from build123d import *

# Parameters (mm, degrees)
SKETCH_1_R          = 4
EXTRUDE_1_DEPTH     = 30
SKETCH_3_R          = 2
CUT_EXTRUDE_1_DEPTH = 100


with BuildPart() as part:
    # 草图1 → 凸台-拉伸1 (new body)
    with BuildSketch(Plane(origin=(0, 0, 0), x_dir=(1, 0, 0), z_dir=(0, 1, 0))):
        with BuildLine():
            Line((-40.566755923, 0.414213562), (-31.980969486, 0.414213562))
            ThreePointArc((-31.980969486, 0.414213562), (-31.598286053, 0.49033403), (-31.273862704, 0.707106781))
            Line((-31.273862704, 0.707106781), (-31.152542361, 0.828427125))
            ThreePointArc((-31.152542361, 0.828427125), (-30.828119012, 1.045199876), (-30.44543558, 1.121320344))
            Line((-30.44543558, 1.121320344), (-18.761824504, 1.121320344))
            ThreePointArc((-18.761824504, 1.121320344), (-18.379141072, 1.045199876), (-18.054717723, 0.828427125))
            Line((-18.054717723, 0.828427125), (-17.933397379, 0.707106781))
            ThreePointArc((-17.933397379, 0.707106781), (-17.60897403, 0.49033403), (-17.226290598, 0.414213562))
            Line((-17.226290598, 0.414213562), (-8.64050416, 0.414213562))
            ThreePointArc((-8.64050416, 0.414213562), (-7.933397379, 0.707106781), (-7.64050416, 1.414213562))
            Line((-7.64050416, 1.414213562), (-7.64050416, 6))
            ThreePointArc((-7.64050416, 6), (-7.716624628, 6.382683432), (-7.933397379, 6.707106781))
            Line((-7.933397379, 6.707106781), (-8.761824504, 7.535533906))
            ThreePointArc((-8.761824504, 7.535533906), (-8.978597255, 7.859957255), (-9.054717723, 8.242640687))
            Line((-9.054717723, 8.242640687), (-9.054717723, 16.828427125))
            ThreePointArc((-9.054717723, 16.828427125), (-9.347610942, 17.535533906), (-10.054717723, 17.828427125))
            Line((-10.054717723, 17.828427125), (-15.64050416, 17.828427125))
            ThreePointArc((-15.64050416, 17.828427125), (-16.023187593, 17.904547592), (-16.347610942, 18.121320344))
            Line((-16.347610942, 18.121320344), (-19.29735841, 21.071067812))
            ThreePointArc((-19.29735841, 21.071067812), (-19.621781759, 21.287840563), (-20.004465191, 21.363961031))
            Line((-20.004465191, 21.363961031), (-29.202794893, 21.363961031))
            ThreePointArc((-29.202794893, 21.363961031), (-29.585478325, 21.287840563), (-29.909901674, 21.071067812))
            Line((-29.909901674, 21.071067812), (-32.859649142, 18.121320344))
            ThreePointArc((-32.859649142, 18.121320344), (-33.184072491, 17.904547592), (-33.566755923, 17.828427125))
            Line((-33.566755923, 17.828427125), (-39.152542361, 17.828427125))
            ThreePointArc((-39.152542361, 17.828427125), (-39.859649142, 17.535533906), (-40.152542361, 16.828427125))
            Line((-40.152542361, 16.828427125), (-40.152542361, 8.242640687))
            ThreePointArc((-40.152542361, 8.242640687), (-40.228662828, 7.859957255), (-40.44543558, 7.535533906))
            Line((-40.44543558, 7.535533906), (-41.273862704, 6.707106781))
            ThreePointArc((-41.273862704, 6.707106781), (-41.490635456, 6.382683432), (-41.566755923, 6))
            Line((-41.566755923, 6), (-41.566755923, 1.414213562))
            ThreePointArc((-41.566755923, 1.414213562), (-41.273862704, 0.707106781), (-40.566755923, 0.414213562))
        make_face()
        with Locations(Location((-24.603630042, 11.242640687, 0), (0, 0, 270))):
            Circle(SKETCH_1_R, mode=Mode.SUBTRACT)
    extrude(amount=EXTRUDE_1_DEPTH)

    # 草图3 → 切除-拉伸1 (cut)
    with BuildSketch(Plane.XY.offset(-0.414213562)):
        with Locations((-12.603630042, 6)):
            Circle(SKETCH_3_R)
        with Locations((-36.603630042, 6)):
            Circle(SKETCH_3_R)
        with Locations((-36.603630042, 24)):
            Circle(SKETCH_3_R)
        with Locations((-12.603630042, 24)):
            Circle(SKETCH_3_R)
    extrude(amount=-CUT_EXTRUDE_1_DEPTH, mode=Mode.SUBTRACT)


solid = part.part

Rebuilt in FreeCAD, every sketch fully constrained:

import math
import FreeCAD as App
import Part
import Sketcher

V = App.Vector
Q = App.Units.Quantity

doc = App.newDocument("Part")
body = doc.addObject("PartDesign::Body", "Body")

# Sketch on XZ plane
sketch1 = body.newObject("Sketcher::SketchObject", "Sketch")
sketch1.AttachmentSupport = (doc.getObject("XZ_Plane"), [""])
sketch1.MapMode = "FlatFace"
sketch1.addGeometry(Part.LineSegment(V(-40.566756, -0.414214, 0), V(-31.980969, -0.414214, 0)), False)
sketch1.addGeometry(Part.ArcOfCircle(Part.Circle(V(-31.980969, -1.414214, 0), V(0, 0, 1), 1), math.radians(45), math.radians(90)), False)
sketch1.addGeometry(Part.LineSegment(V(-31.273863, -0.707107, 0), V(-31.152542, -0.828427, 0)), False)
sketch1.addGeometry(Part.ArcOfCircle(Part.Circle(V(-30.445436, -0.12132, 0), V(0, 0, 1), 1), math.radians(-135), math.radians(-90)), False)
sketch1.addGeometry(Part.LineSegment(V(-30.445436, -1.12132, 0), V(-18.761825, -1.12132, 0)), False)
sketch1.addGeometry(Part.ArcOfCircle(Part.Circle(V(-18.761825, -0.12132, 0), V(0, 0, 1), 1), math.radians(-90), math.radians(-45)), False)
sketch1.addGeometry(Part.LineSegment(V(-18.054718, -0.828427, 0), V(-17.933397, -0.707107, 0)), False)
sketch1.addGeometry(Part.ArcOfCircle(Part.Circle(V(-17.226291, -1.414214, 0), V(0, 0, 1), 1), math.radians(90), math.radians(135)), False)
sketch1.addGeometry(Part.LineSegment(V(-17.226291, -0.414214, 0), V(-8.640504, -0.414214, 0)), False)
sketch1.addGeometry(Part.ArcOfCircle(Part.Circle(V(-8.640504, -1.414214, 0), V(0, 0, 1), 1), math.radians(0), math.radians(90)), False)
sketch1.addGeometry(Part.LineSegment(V(-7.640504, -1.414214, 0), V(-7.640504, -6, 0)), False)
sketch1.addGeometry(Part.ArcOfCircle(Part.Circle(V(-8.640504, -6, 0), V(0, 0, 1), 1), math.radians(-45), math.radians(0)), False)
sketch1.addGeometry(Part.LineSegment(V(-7.933397, -6.707107, 0), V(-8.761825, -7.535534, 0)), False)
sketch1.addGeometry(Part.ArcOfCircle(Part.Circle(V(-8.054718, -8.242641, 0), V(0, 0, 1), 1), math.radians(135), math.radians(180)), False)
sketch1.addGeometry(Part.LineSegment(V(-9.054718, -8.242641, 0), V(-9.054718, -16.828427, 0)), False)
sketch1.addGeometry(Part.ArcOfCircle(Part.Circle(V(-10.054718, -16.828427, 0), V(0, 0, 1), 1), math.radians(-90), math.radians(0)), False)
sketch1.addGeometry(Part.LineSegment(V(-10.054718, -17.828427, 0), V(-15.640504, -17.828427, 0)), False)
sketch1.addGeometry(Part.ArcOfCircle(Part.Circle(V(-15.640504, -18.828427, 0), V(0, 0, 1), 1), math.radians(90), math.radians(135)), False)
sketch1.addGeometry(Part.LineSegment(V(-16.347611, -18.12132, 0), V(-19.297358, -21.071068, 0)), False)
sketch1.addGeometry(Part.ArcOfCircle(Part.Circle(V(-20.004465, -20.363961, 0), V(0, 0, 1), 1), math.radians(-90), math.radians(-45)), False)
sketch1.addGeometry(Part.LineSegment(V(-20.004465, -21.363961, 0), V(-29.202795, -21.363961, 0)), False)
sketch1.addGeometry(Part.ArcOfCircle(Part.Circle(V(-29.202795, -20.363961, 0), V(0, 0, 1), 1), math.radians(-135), math.radians(-90)), False)
sketch1.addGeometry(Part.LineSegment(V(-29.909902, -21.071068, 0), V(-32.859649, -18.12132, 0)), False)
sketch1.addGeometry(Part.ArcOfCircle(Part.Circle(V(-33.566756, -18.828427, 0), V(0, 0, 1), 1), math.radians(45), math.radians(90)), False)
sketch1.addGeometry(Part.LineSegment(V(-33.566756, -17.828427, 0), V(-39.152542, -17.828427, 0)), False)
sketch1.addGeometry(Part.ArcOfCircle(Part.Circle(V(-39.152542, -16.828427, 0), V(0, 0, 1), 1), math.radians(-180), math.radians(-90)), False)
sketch1.addGeometry(Part.LineSegment(V(-40.152542, -16.828427, 0), V(-40.152542, -8.242641, 0)), False)
sketch1.addGeometry(Part.ArcOfCircle(Part.Circle(V(-41.152542, -8.242641, 0), V(0, 0, 1), 1), math.radians(0), math.radians(45)), False)
sketch1.addGeometry(Part.LineSegment(V(-40.445436, -7.535534, 0), V(-41.273863, -6.707107, 0)), False)
sketch1.addGeometry(Part.ArcOfCircle(Part.Circle(V(-40.566756, -6, 0), V(0, 0, 1), 1), math.radians(180), math.radians(225)), False)
sketch1.addGeometry(Part.LineSegment(V(-41.566756, -6, 0), V(-41.566756, -1.414214, 0)), False)
sketch1.addGeometry(Part.ArcOfCircle(Part.Circle(V(-40.566756, -1.414214, 0), V(0, 0, 1), 1), math.radians(90), math.radians(180)), False)
sketch1.addGeometry(Part.Circle(V(-24.60363, -11.242641, 0), V(0, 0, 1), 4), False)
sketch1.addConstraint(Sketcher.Constraint("Tangent", 0, 2, 1, 2))
sketch1.addConstraint(Sketcher.Constraint("Tangent", 1, 1, 2, 1))
sketch1.addConstraint(Sketcher.Constraint("Tangent", 2, 2, 3, 1))
sketch1.addConstraint(Sketcher.Constraint("Tangent", 3, 2, 4, 1))
sketch1.addConstraint(Sketcher.Constraint("Tangent", 4, 2, 5, 1))
sketch1.addConstraint(Sketcher.Constraint("Tangent", 5, 2, 6, 1))
sketch1.addConstraint(Sketcher.Constraint("Tangent", 6, 2, 7, 2))
sketch1.addConstraint(Sketcher.Constraint("Tangent", 7, 1, 8, 1))
sketch1.addConstraint(Sketcher.Constraint("Tangent", 8, 2, 9, 2))
sketch1.addConstraint(Sketcher.Constraint("Tangent", 9, 1, 10, 1))
sketch1.addConstraint(Sketcher.Constraint("Tangent", 10, 2, 11, 2))
sketch1.addConstraint(Sketcher.Constraint("Tangent", 11, 1, 12, 1))
sketch1.addConstraint(Sketcher.Constraint("Tangent", 12, 2, 13, 1))
sketch1.addConstraint(Sketcher.Constraint("Tangent", 13, 2, 14, 1))
sketch1.addConstraint(Sketcher.Constraint("Tangent", 14, 2, 15, 2))
sketch1.addConstraint(Sketcher.Constraint("Tangent", 15, 1, 16, 1))
sketch1.addConstraint(Sketcher.Constraint("Tangent", 16, 2, 17, 1))
sketch1.addConstraint(Sketcher.Constraint("Tangent", 17, 2, 18, 1))
sketch1.addConstraint(Sketcher.Constraint("Tangent", 18, 2, 19, 2))
sketch1.addConstraint(Sketcher.Constraint("Tangent", 19, 1, 20, 1))
sketch1.addConstraint(Sketcher.Constraint("Tangent", 20, 2, 21, 2))
sketch1.addConstraint(Sketcher.Constraint("Tangent", 21, 1, 22, 1))
sketch1.addConstraint(Sketcher.Constraint("Tangent", 22, 2, 23, 1))
sketch1.addConstraint(Sketcher.Constraint("Tangent", 23, 2, 24, 1))
sketch1.addConstraint(Sketcher.Constraint("Tangent", 24, 2, 25, 2))
sketch1.addConstraint(Sketcher.Constraint("Tangent", 25, 1, 26, 1))
sketch1.addConstraint(Sketcher.Constraint("Tangent", 26, 2, 27, 1))
sketch1.addConstraint(Sketcher.Constraint("Tangent", 27, 2, 28, 1))
sketch1.addConstraint(Sketcher.Constraint("Tangent", 28, 2, 29, 2))
sketch1.addConstraint(Sketcher.Constraint("Tangent", 29, 1, 30, 1))
sketch1.addConstraint(Sketcher.Constraint("Tangent", 30, 2, 31, 2))
sketch1.addConstraint(Sketcher.Constraint("Tangent", 31, 1, 0, 1))
sketch1.addConstraint(Sketcher.Constraint("Horizontal", 0))
sketch1.addConstraint(Sketcher.Constraint("Horizontal", 4))
sketch1.addConstraint(Sketcher.Constraint("Horizontal", 8))
sketch1.addConstraint(Sketcher.Constraint("Vertical", 10))
sketch1.addConstraint(Sketcher.Constraint("Vertical", 14))
sketch1.addConstraint(Sketcher.Constraint("Horizontal", 16))
sketch1.addConstraint(Sketcher.Constraint("Horizontal", 20))
sketch1.addConstraint(Sketcher.Constraint("Horizontal", 24))
sketch1.addConstraint(Sketcher.Constraint("Vertical", 26))
sketch1.addConstraint(Sketcher.Constraint("Vertical", 30))
sketch1.addConstraint(Sketcher.Constraint("Equal", 1, 3))
sketch1.addConstraint(Sketcher.Constraint("Equal", 3, 5))
sketch1.addConstraint(Sketcher.Constraint("Equal", 5, 7))
sketch1.addConstraint(Sketcher.Constraint("Equal", 7, 9))
sketch1.addConstraint(Sketcher.Constraint("Equal", 9, 11))
sketch1.addConstraint(Sketcher.Constraint("Equal", 11, 13))
sketch1.addConstraint(Sketcher.Constraint("Equal", 13, 15))
sketch1.addConstraint(Sketcher.Constraint("Equal", 15, 17))
sketch1.addConstraint(Sketcher.Constraint("Equal", 17, 19))
sketch1.addConstraint(Sketcher.Constraint("Equal", 19, 21))
sketch1.addConstraint(Sketcher.Constraint("Equal", 21, 23))
sketch1.addConstraint(Sketcher.Constraint("Equal", 23, 25))
sketch1.addConstraint(Sketcher.Constraint("Equal", 25, 27))
sketch1.addConstraint(Sketcher.Constraint("Equal", 27, 29))
sketch1.addConstraint(Sketcher.Constraint("Equal", 29, 31))
sketch1.addConstraint(Sketcher.Constraint("Perpendicular", 2, 6))
sketch1.addConstraint(Sketcher.Constraint("Parallel", 6, 12))
sketch1.addConstraint(Sketcher.Constraint("Parallel", 12, 18))
sketch1.addConstraint(Sketcher.Constraint("Perpendicular", 18, 22))
sketch1.addConstraint(Sketcher.Constraint("Parallel", 22, 28))
sketch1.addConstraint(Sketcher.Constraint("Horizontal", 1, 3, 7, 3))
sketch1.addConstraint(Sketcher.Constraint("Horizontal", 17, 3, 23, 3))
sketch1.addConstraint(Sketcher.Constraint("Horizontal", 13, 3, 27, 3))
sketch1.addConstraint(Sketcher.Constraint("Horizontal", 11, 3, 29, 3))
sketch1.addConstraint(Sketcher.Constraint("Horizontal", 2, 2, 5, 2))
sketch1.addConstraint(Sketcher.Constraint("Equal", 0, 8))
sketch1.addConstraint(Sketcher.Constraint("Equal", 16, 24))
sketch1.addConstraint(Sketcher.Constraint("Equal", 8, 14))
sketch1.addConstraint(Sketcher.Constraint("Diameter", 32, Q("8 mm")))
sketch1.addConstraint(Sketcher.Constraint("Radius", 1, Q("1 mm")))
sketch1.addConstraint(Sketcher.Constraint("DistanceY", 11, 3, -1, 1, Q("6 mm")))
sketch1.addConstraint(Sketcher.Constraint("DistanceX", 17, 3, 11, 3, Q("7 mm")))
sketch1.addConstraint(Sketcher.Constraint("DistanceX", 4, 1, 4, 2, Q("11.683611 mm")))
sketch1.addConstraint(Sketcher.Constraint("DistanceX", 20, 2, 20, 1, Q("9.19833 mm")))
sketch1.addConstraint(Sketcher.Constraint("DistanceX", 21, 1, -1, 1, Q("29.909902 mm")))
sketch1.addConstraint(Sketcher.Constraint("DistanceX", 0, 1, 0, 2, Q("8.585786 mm")))
sketch1.addConstraint(Sketcher.Constraint("DistanceX", 16, 2, 16, 1, Q("5.585786 mm")))
sketch1.addConstraint(Sketcher.Constraint("DistanceY", 10, 2, 10, 1, Q("4.585786 mm")))
sketch1.addConstraint(Sketcher.Constraint("DistanceX", 1, 3, -1, 1, Q("31.980969 mm")))
sketch1.addConstraint(Sketcher.Constraint("DistanceX", 32, 3, -1, 1, Q("24.60363 mm")))
sketch1.addConstraint(Sketcher.Constraint("DistanceY", 32, 3, -1, 1, Q("11.242641 mm")))
pad1 = body.newObject("PartDesign::Pad", "Pad")
pad1.Profile = sketch1
pad1.Length = 30
pad1.Reversed = True

# Sketch on XY plane
sketch2 = body.newObject("Sketcher::SketchObject", "Sketch001")
sketch2.AttachmentSupport = (doc.getObject("XY_Plane"), [""])
sketch2.MapMode = "FlatFace"
sketch2.AttachmentOffset = App.Placement(V(0, 0, -0.414214), App.Rotation())
sketch2.addGeometry(Part.Circle(V(-12.60363, 6, 0), V(0, 0, 1), 2), False)
sketch2.addGeometry(Part.Circle(V(-36.60363, 6, 0), V(0, 0, 1), 2), False)
sketch2.addGeometry(Part.Circle(V(-36.60363, 24, 0), V(0, 0, 1), 2), False)
sketch2.addGeometry(Part.Circle(V(-12.60363, 24, 0), V(0, 0, 1), 2), False)
sketch2.addConstraint(Sketcher.Constraint("Equal", 0, 1))
sketch2.addConstraint(Sketcher.Constraint("Equal", 1, 2))
sketch2.addConstraint(Sketcher.Constraint("Equal", 2, 3))
sketch2.addConstraint(Sketcher.Constraint("Horizontal", 0, 3, 1, 3))
sketch2.addConstraint(Sketcher.Constraint("Horizontal", 2, 3, 3, 3))
sketch2.addConstraint(Sketcher.Constraint("Vertical", 1, 3, 2, 3))
sketch2.addConstraint(Sketcher.Constraint("Vertical", 0, 3, 3, 3))
sketch2.addConstraint(Sketcher.Constraint("Diameter", 0, Q("4 mm")))
sketch2.addConstraint(Sketcher.Constraint("DistanceY", -1, 1, 0, 3, Q("6 mm")))
sketch2.addConstraint(Sketcher.Constraint("DistanceY", -1, 1, 2, 3, Q("24 mm")))
sketch2.addConstraint(Sketcher.Constraint("DistanceX", 1, 3, 0, 3, Q("24 mm")))
sketch2.addConstraint(Sketcher.Constraint("DistanceX", 0, 3, -1, 1, Q("12.60363 mm")))
pocket1 = body.newObject("PartDesign::Pocket", "Pocket")
pocket1.Profile = sketch2
pocket1.Length = 100

doc.recompute()
